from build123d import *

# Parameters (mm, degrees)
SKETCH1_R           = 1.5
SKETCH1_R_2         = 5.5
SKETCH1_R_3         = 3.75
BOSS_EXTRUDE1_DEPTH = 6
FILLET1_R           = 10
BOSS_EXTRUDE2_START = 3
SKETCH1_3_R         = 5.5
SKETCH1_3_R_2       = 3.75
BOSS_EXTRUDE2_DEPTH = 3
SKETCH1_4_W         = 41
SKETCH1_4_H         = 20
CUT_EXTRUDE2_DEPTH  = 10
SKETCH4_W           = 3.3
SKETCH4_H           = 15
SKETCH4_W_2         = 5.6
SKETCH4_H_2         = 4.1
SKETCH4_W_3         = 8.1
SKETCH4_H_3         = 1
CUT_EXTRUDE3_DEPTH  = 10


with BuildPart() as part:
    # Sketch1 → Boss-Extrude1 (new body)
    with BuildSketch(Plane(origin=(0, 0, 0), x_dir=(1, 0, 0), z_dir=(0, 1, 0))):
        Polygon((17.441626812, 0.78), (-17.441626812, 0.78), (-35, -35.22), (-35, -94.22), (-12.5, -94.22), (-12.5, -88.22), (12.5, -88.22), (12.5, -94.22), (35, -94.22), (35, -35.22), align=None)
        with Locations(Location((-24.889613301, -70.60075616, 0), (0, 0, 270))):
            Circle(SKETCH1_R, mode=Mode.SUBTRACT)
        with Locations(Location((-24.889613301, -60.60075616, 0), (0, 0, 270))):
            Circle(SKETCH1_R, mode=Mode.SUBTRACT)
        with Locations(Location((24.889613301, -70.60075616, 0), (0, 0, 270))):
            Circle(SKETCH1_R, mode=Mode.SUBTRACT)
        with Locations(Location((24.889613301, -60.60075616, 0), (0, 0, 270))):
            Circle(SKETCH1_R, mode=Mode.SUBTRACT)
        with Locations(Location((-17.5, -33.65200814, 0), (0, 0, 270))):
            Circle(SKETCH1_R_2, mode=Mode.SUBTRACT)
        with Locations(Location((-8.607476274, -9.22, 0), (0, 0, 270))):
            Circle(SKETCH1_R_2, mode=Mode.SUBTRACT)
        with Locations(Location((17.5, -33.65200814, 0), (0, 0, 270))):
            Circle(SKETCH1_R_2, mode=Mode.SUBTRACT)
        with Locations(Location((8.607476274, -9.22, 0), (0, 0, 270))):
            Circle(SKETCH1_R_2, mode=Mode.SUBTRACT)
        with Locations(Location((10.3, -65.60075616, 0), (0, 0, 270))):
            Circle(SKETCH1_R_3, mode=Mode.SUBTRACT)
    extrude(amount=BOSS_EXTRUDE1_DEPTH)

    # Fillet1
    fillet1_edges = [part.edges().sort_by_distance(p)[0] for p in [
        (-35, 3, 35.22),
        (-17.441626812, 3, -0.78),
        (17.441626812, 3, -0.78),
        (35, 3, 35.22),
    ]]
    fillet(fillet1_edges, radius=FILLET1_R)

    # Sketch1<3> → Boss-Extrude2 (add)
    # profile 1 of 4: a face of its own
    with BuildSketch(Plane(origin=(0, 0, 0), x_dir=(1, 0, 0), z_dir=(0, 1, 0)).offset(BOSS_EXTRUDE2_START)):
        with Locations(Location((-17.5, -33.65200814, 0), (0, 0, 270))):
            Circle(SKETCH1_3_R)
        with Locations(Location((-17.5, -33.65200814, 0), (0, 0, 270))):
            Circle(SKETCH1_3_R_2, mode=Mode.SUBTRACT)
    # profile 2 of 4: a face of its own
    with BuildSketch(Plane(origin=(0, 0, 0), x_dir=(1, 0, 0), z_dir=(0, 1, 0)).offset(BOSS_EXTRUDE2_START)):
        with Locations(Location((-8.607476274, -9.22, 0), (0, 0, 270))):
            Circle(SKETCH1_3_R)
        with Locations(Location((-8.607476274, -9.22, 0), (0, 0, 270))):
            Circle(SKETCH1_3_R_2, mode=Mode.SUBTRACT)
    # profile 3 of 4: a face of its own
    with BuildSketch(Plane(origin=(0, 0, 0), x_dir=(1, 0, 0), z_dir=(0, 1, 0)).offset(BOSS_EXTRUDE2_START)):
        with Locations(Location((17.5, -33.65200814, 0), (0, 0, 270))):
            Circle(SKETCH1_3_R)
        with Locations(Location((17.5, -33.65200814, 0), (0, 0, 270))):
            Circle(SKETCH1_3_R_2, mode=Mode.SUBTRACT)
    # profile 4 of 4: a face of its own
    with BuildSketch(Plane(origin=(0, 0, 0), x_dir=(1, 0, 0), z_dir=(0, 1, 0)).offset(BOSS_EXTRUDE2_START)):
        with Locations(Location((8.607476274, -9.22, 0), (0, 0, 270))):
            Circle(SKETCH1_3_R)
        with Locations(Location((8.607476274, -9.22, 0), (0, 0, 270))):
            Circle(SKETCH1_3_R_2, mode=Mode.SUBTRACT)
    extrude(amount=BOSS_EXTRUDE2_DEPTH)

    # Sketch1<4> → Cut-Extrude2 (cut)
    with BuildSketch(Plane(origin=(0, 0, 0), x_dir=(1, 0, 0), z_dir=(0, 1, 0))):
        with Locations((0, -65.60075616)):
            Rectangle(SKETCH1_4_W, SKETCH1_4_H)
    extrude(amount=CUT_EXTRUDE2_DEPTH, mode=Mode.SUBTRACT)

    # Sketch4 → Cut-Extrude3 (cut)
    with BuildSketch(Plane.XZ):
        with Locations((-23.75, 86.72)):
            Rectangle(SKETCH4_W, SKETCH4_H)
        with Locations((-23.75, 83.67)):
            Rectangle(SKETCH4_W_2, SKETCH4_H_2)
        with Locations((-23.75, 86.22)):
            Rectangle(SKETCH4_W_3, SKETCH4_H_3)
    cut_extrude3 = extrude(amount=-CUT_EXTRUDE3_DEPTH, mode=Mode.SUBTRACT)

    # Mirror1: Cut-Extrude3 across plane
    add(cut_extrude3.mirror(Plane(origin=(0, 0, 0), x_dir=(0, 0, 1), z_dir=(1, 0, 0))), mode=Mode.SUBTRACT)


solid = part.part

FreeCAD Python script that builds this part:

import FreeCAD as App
import Part
import Sketcher
Q = App.Units.Quantity


def edges_at(feature, points):
    """Names of the edges that pass closest to the given points."""
    edges = feature.Shape.Edges
    near = lambda p: min(range(len(edges)), key=lambda i: edges[i].distToShape(Part.Vertex(*p))[0])
    return sorted({f"Edge{near(p) + 1}" for p in points})

doc = App.newDocument("Part")
params = doc.addObject("Spreadsheet::Sheet", "Params")
for row, (alias, value) in enumerate([
    ("sketch1_diameter", "3 mm"),
    ("sketch1_diameter2", "11 mm"),
    ("sketch1_diameter3", "7.5 mm"),
    ("sketch1_width", "25 mm"),
    ("sketch1_height", "59 mm"),
    ("pad1_length", "6 mm"),
    ("fillet_radius", "10 mm"),
    ("sketch2_diameter", "11 mm"),
    ("sketch2_diameter2", "7.5 mm"),
    ("pad2_length", "3 mm"),
    ("sketch3_width", "41 mm"),
    ("sketch3_height", "20 mm"),
    ("pocket1_length", "10 mm"),
    ("sketch4_height", "1 mm"),
    ("sketch4_width", "3.3 mm"),
    ("sketch4_width2", "2.4 mm"),
    ("sketch4_height2", "4.1 mm"),
    ("sketch4_height3", "7.5 mm"),
    ("pocket2_length", "10 mm"),
], start=1):
    params.set(f"A{row}", alias)
    params.set(f"B{row}", "=" + value)
    params.setAlias(f"B{row}", alias)

body = doc.addObject("PartDesign::Body", "Body")

# Sketch on XZ plane
sketch1 = body.newObject("Sketcher::SketchObject", "Sketch")
sketch1.AttachmentSupport = (doc.getObject("XZ_Plane"), [""])
sketch1.MapMode = "FlatFace"
sketch1.addGeometry(Part.LineSegment(App.Vector(17.441627, -0.78, 0), App.Vector(-17.441627, -0.78, 0)), False)
sketch1.addGeometry(Part.LineSegment(App.Vector(-17.441627, -0.78, 0), App.Vector(-35, 35.22, 0)), False)
sketch1.addGeometry(Part.LineSegment(App.Vector(-35, 35.22, 0), App.Vector(-35, 94.22, 0)), False)
sketch1.addGeometry(Part.LineSegment(App.Vector(-35, 94.22, 0), App.Vector(-12.5, 94.22, 0)), False)
sketch1.addGeometry(Part.LineSegment(App.Vector(-12.5, 94.22, 0), App.Vector(-12.5, 88.22, 0)), False)
sketch1.addGeometry(Part.LineSegment(App.Vector(-12.5, 88.22, 0), App.Vector(12.5, 88.22, 0)), False)
sketch1.addGeometry(Part.LineSegment(App.Vector(12.5, 88.22, 0), App.Vector(12.5, 94.22, 0)), False)
sketch1.addGeometry(Part.LineSegment(App.Vector(12.5, 94.22, 0), App.Vector(35, 94.22, 0)), False)
sketch1.addGeometry(Part.LineSegment(App.Vector(35, 94.22, 0), App.Vector(35, 35.22, 0)), False)
sketch1.addGeometry(Part.LineSegment(App.Vector(35, 35.22, 0), App.Vector(17.441627, -0.78, 0)), False)
sketch1.addGeometry(Part.Circle(App.Vector(-24.889613, 70.600756, 0), App.Vector(0, 0, 1), 1.5), False)
sketch1.addGeometry(Part.Circle(App.Vector(-24.889613, 60.600756, 0), App.Vector(0, 0, 1), 1.5), False)
sketch1.addGeometry(Part.Circle(App.Vector(10.3, 65.600756, 0), App.Vector(0, 0, 1), 3.75), False)
sketch1.addGeometry(Part.Circle(App.Vector(24.889613, 70.600756, 0), App.Vector(0, 0, 1), 1.5), False)
sketch1.addGeometry(Part.Circle(App.Vector(24.889613, 60.600756, 0), App.Vector(0, 0, 1), 1.5), False)
sketch1.addGeometry(Part.Circle(App.Vector(-17.5, 33.652008, 0), App.Vector(0, 0, 1), 5.5), False)
sketch1.addGeometry(Part.Circle(App.Vector(-8.607476, 9.22, 0), App.Vector(0, 0, 1), 5.5), False)
sketch1.addGeometry(Part.Circle(App.Vector(17.5, 33.652008, 0), App.Vector(0, 0, 1), 5.5), False)
sketch1.addGeometry(Part.Circle(App.Vector(8.607476, 9.22, 0), App.Vector(0, 0, 1), 5.5), False)
sketch1.addConstraint(Sketcher.Constraint("Coincident", 0, 2, 1, 1))
sketch1.addConstraint(Sketcher.Constraint("Coincident", 1, 2, 2, 1))
sketch1.addConstraint(Sketcher.Constraint("Coincident", 2, 2, 3, 1))
sketch1.addConstraint(Sketcher.Constraint("Coincident", 3, 2, 4, 1))
sketch1.addConstraint(Sketcher.Constraint("Coincident", 4, 2, 5, 1))
sketch1.addConstraint(Sketcher.Constraint("Coincident", 5, 2, 6, 1))
sketch1.addConstraint(Sketcher.Constraint("Coincident", 6, 2, 7, 1))
sketch1.addConstraint(Sketcher.Constraint("Coincident", 7, 2, 8, 1))
sketch1.addConstraint(Sketcher.Constraint("Coincident", 8, 2, 9, 1))
sketch1.addConstraint(Sketcher.Constraint("Coincident", 9, 2, 0, 1))
sketch1.addConstraint(Sketcher.Constraint("Horizontal", 0))
sketch1.addConstraint(Sketcher.Constraint("Vertical", 2))
sketch1.addConstraint(Sketcher.Constraint("Horizontal", 3))
sketch1.addConstraint(Sketcher.Constraint("Vertical", 4))
sketch1.addConstraint(Sketcher.Constraint("Horizontal", 5))
sketch1.addConstraint(Sketcher.Constraint("Vertical", 6))
sketch1.addConstraint(Sketcher.Constraint("Horizontal", 7))
sketch1.addConstraint(Sketcher.Constraint("Vertical", 8))
sketch1.addConstraint(Sketcher.Constraint("Equal", 10, 11))
sketch1.addConstraint(Sketcher.Constraint("Equal", 11, 13))
sketch1.addConstraint(Sketcher.Constraint("Equal", 13, 14))
sketch1.addConstraint(Sketcher.Constraint("Equal", 15, 16))
sketch1.addConstraint(Sketcher.Constraint("Equal", 16, 17))
sketch1.addConstraint(Sketcher.Constraint("Equal", 17, 18))
sketch1.addConstraint(Sketcher.Constraint("Symmetric", 10, 3, 13, 3, -2))
sketch1.addConstraint(Sketcher.Constraint("Symmetric", 11, 3, 14, 3, -2))
sketch1.addConstraint(Sketcher.Constraint("Symmetric", 15, 3, 17, 3, -2))
sketch1.addConstraint(Sketcher.Constraint("Symmetric", 16, 3, 18, 3, -2))
sketch1.addConstraint(Sketcher.Constraint("Symmetric", 3, 2, 6, 2, -2))
sketch1.addConstraint(Sketcher.Constraint("Symmetric", 1, 2, 8, 2, -2))
sketch1.addConstraint(Sketcher.Constraint("Vertical", 10, 3, 11, 3))
sketch1.addConstraint(Sketcher.Constraint("Equal", 1, 9))
sketch1.addConstraint(Sketcher.Constraint("Diameter", 10, Q("3 mm")))
sketch1.addConstraint(Sketcher.Constraint("Diameter", 15, Q("11 mm")))
sketch1.addConstraint(Sketcher.Constraint("Diameter", 12, Q("7.5 mm")))
sketch1.addConstraint(Sketcher.Constraint("DistanceX", 5, 1, 5, 2, Q("25 mm")))
sketch1.addConstraint(Sketcher.Constraint("DistanceY", 2, 1, 2, 2, Q("59 mm")))
sketch1.addConstraint(Sketcher.Constraint("DistanceY", 4, 2, 4, 1, Q("6 mm")))
sketch1.addConstraint(Sketcher.Constraint("Angle", 1, Q("116 deg")))
sketch1.addConstraint(Sketcher.Constraint("DistanceX", 3, 1, 3, 2, Q("22.5 mm")))
sketch1.addConstraint(Sketcher.Constraint("DistanceY", 11, 3, 10, 3, Q("10 mm")))
sketch1.addConstraint(Sketcher.Constraint("DistanceY", 12, 3, 10, 3, Q("5 mm")))
sketch1.addConstraint(Sketcher.Constraint("DistanceX", 15, 3, 17, 3, Q("35 mm")))
sketch1.addConstraint(Sketcher.Constraint("DistanceY", 0, 2, 16, 3, Q("10 mm")))
sketch1.addConstraint(Sketcher.Constraint("DistanceY", 16, 3, 1, 2, Q("26 mm")))
sketch1.addConstraint(Sketcher.Constraint("DistanceX", -1, 1, 12, 3, Q("10.3 mm")))
sketch1.addConstraint(Sketcher.Constraint("DistanceY", -1, 1, 16, 3, Q("9.22 mm")))
sketch1.addConstraint(Sketcher.Constraint("DistanceY", -1, 1, 15, 3, Q("33.652008 mm")))
sketch1.addConstraint(Sketcher.Constraint("DistanceY", 15, 3, 11, 3, Q("26.948748 mm")))
sketch1.addConstraint(Sketcher.Constraint("DistanceX", 16, 3, 14, 3, Q("33.49709 mm")))
sketch1.addConstraint(Sketcher.Constraint("DistanceX", 0, 2, 16, 3, Q("8.834151 mm")))
sketch1.setExpression("Constraints[32]", "Params.sketch1_diameter")
sketch1.setExpression("Constraints[33]", "Params.sketch1_diameter2")
sketch1.setExpression("Constraints[34]", "Params.sketch1_diameter3")
sketch1.setExpression("Constraints[35]", "Params.sketch1_width")
sketch1.setExpression("Constraints[36]", "Params.sketch1_height")
pad1 = body.newObject("PartDesign::Pad", "Pad")
pad1.Profile = sketch1
pad1.setExpression("Length", "Params.pad1_length")
pad1.Reversed = True
doc.recompute()

fillet = body.newObject("PartDesign::Fillet", "Fillet")
fillet.Base = (pad1, edges_at(pad1, [
    (-35, 3, 35.22),
    (-17.442, 3, -0.78),
    (17.442, 3, -0.78),
    (35, 3, 35.22),
]))
fillet.setExpression("Radius", "Params.fillet_radius")

# Sketch on XZ plane
sketch2 = body.newObject("Sketcher::SketchObject", "Sketch001")
sketch2.AttachmentSupport = (doc.getObject("XZ_Plane"), [""])
sketch2.MapMode = "FlatFace"
sketch2.AttachmentOffset = App.Placement(App.Vector(0, 0, -3), App.Rotation())
sketch2.addGeometry(Part.Circle(App.Vector(-17.5, 33.652008, 0), App.Vector(0, 0, 1), 5.5), False)
sketch2.addGeometry(Part.Circle(App.Vector(-17.5, 33.652008, 0), App.Vector(0, 0, 1), 3.75), False)
sketch2.addGeometry(Part.Circle(App.Vector(-8.607476, 9.22, 0), App.Vector(0, 0, 1), 5.5), False)
sketch2.addGeometry(Part.Circle(App.Vector(-8.607476, 9.22, 0), App.Vector(0, 0, 1), 3.75), False)
sketch2.addGeometry(Part.Circle(App.Vector(17.5, 33.652008, 0), App.Vector(0, 0, 1), 5.5), False)
sketch2.addGeometry(Part.Circle(App.Vector(17.5, 33.652008, 0), App.Vector(0, 0, 1), 3.75), False)
sketch2.addGeometry(Part.Circle(App.Vector(8.607476, 9.22, 0), App.Vector(0, 0, 1), 5.5), False)
sketch2.addGeometry(Part.Circle(App.Vector(8.607476, 9.22, 0), App.Vector(0, 0, 1), 3.75), False)
sketch2.addConstraint(Sketcher.Constraint("Coincident", 1, 3, 0, 3))
sketch2.addConstraint(Sketcher.Constraint("Coincident", 3, 3, 2, 3))
sketch2.addConstraint(Sketcher.Constraint("Coincident", 5, 3, 4, 3))
sketch2.addConstraint(Sketcher.Constraint("Coincident", 7, 3, 6, 3))
sketch2.addConstraint(Sketcher.Constraint("Equal", 0, 2))
sketch2.addConstraint(Sketcher.Constraint("Equal", 1, 3))
sketch2.addConstraint(Sketcher.Constraint("Equal", 2, 4))
sketch2.addConstraint(Sketcher.Constraint("Equal", 3, 5))
sketch2.addConstraint(Sketcher.Constraint("Equal", 4, 6))
sketch2.addConstraint(Sketcher.Constraint("Equal", 5, 7))
sketch2.addConstraint(Sketcher.Constraint("Symmetric", 0, 3, 4, 3, -2))
sketch2.addConstraint(Sketcher.Constraint("Symmetric", 2, 3, 6, 3, -2))
sketch2.addConstraint(Sketcher.Constraint("Diameter", 0, Q("11 mm")))
sketch2.addConstraint(Sketcher.Constraint("Diameter", 1, Q("7.5 mm")))
sketch2.addConstraint(Sketcher.Constraint("DistanceX", 0, 3, 4, 3, Q("35 mm")))
sketch2.addConstraint(Sketcher.Constraint("DistanceY", -1, 1, 2, 3, Q("9.22 mm")))
sketch2.addConstraint(Sketcher.Constraint("DistanceY", -1, 1, 0, 3, Q("33.652008 mm")))
sketch2.addConstraint(Sketcher.Constraint("DistanceX", 2, 3, -1, 1, Q("8.607476 mm")))
sketch2.setExpression("Constraints[12]", "Params.sketch2_diameter")
sketch2.setExpression("Constraints[13]", "Params.sketch2_diameter2")
pad2 = body.newObject("PartDesign::Pad", "Pad001")
pad2.Profile = sketch2
pad2.setExpression("Length", "Params.pad2_length")
pad2.Reversed = True

# Sketch on XZ plane
sketch3 = body.newObject("Sketcher::SketchObject", "Sketch002")
sketch3.AttachmentSupport = (doc.getObject("XZ_Plane"), [""])
sketch3.MapMode = "FlatFace"
sketch3.addGeometry(Part.LineSegment(App.Vector(-20.5, 55.600756, 0), App.Vector(-20.5, 75.600756, 0)), False)
sketch3.addGeometry(Part.LineSegment(App.Vector(-20.5, 75.600756, 0), App.Vector(20.5, 75.600756, 0)), False)
sketch3.addGeometry(Part.LineSegment(App.Vector(20.5, 75.600756, 0), App.Vector(20.5, 55.600756, 0)), False)
sketch3.addGeometry(Part.LineSegment(App.Vector(20.5, 55.600756, 0), App.Vector(-20.5, 55.600756, 0)), False)
sketch3.addConstraint(Sketcher.Constraint("Coincident", 0, 2, 1, 1))
sketch3.addConstraint(Sketcher.Constraint("Coincident", 1, 2, 2, 1))
sketch3.addConstraint(Sketcher.Constraint("Coincident", 2, 2, 3, 1))
sketch3.addConstraint(Sketcher.Constraint("Coincident", 3, 2, 0, 1))
sketch3.addConstraint(Sketcher.Constraint("Vertical", 0))
sketch3.addConstraint(Sketcher.Constraint("Horizontal", 1))
sketch3.addConstraint(Sketcher.Constraint("Vertical", 2))
sketch3.addConstraint(Sketcher.Constraint("Horizontal", 3))
sketch3.addConstraint(Sketcher.Constraint("DistanceX", 1, 1, 1, 2, Q("41 mm")))
sketch3.addConstraint(Sketcher.Constraint("DistanceY", 0, 1, 0, 2, Q("20 mm")))
sketch3.addConstraint(Sketcher.Constraint("DistanceX", 0, 2, -1, 1, Q("20.5 mm")))
sketch3.addConstraint(Sketcher.Constraint("DistanceY", -1, 1, 0, 2, Q("75.600756 mm")))
sketch3.setExpression("Constraints[8]", "Params.sketch3_width")
sketch3.setExpression("Constraints[9]", "Params.sketch3_height")
pocket1 = body.newObject("PartDesign::Pocket", "Pocket")
pocket1.Profile = sketch3
pocket1.setExpression("Length", "Params.pocket1_length")

# Sketch on XZ plane
sketch4 = body.newObject("Sketcher::SketchObject", "Sketch003")
sketch4.AttachmentSupport = (doc.getObject("XZ_Plane"), [""])
sketch4.MapMode = "FlatFace"
sketch4.addGeometry(Part.LineSegment(App.Vector(-25.4, 81.62, 0), App.Vector(-25.4, 79.22, 0)), False)
sketch4.addGeometry(Part.LineSegment(App.Vector(-25.4, 79.22, 0), App.Vector(-22.1, 79.22, 0)), False)
sketch4.addGeometry(Part.LineSegment(App.Vector(-22.1, 79.22, 0), App.Vector(-22.1, 81.62, 0)), False)
sketch4.addGeometry(Part.LineSegment(App.Vector(-22.1, 81.62, 0), App.Vector(-20.95, 81.62, 0)), False)
sketch4.addGeometry(Part.LineSegment(App.Vector(-20.95, 81.62, 0), App.Vector(-20.95, 85.72, 0)), False)
sketch4.addGeometry(Part.LineSegment(App.Vector(-20.95, 85.72, 0), App.Vector(-19.7, 85.72, 0)), False)
sketch4.addGeometry(Part.LineSegment(App.Vector(-19.7, 85.72, 0), App.Vector(-19.7, 86.72, 0)), False)
sketch4.addGeometry(Part.LineSegment(App.Vector(-19.7, 86.72, 0), App.Vector(-22.1, 86.72, 0)), False)
sketch4.addGeometry(Part.LineSegment(App.Vector(-22.1, 86.72, 0), App.Vector(-22.1, 94.22, 0)), False)
sketch4.addGeometry(Part.LineSegment(App.Vector(-22.1, 94.22, 0), App.Vector(-25.4, 94.22, 0)), False)
sketch4.addGeometry(Part.LineSegment(App.Vector(-25.4, 94.22, 0), App.Vector(-25.4, 86.72, 0)), False)
sketch4.addGeometry(Part.LineSegment(App.Vector(-25.4, 86.72, 0), App.Vector(-27.8, 86.72, 0)), False)
sketch4.addGeometry(Part.LineSegment(App.Vector(-27.8, 86.72, 0), App.Vector(-27.8, 85.72, 0)), False)
sketch4.addGeometry(Part.LineSegment(App.Vector(-27.8, 85.72, 0), App.Vector(-26.55, 85.72, 0)), False)
sketch4.addGeometry(Part.LineSegment(App.Vector(-26.55, 85.72, 0), App.Vector(-26.55, 81.62, 0)), False)
sketch4.addGeometry(Part.LineSegment(App.Vector(-26.55, 81.62, 0), App.Vector(-25.4, 81.62, 0)), False)
sketch4.addConstraint(Sketcher.Constraint("Coincident", 0, 2, 1, 1))
sketch4.addConstraint(Sketcher.Constraint("Coincident", 1, 2, 2, 1))
sketch4.addConstraint(Sketcher.Constraint("Coincident", 2, 2, 3, 1))
sketch4.addConstraint(Sketcher.Constraint("Coincident", 3, 2, 4, 1))
sketch4.addConstraint(Sketcher.Constraint("Coincident", 4, 2, 5, 1))
sketch4.addConstraint(Sketcher.Constraint("Coincident", 5, 2, 6, 1))
sketch4.addConstraint(Sketcher.Constraint("Coincident", 6, 2, 7, 1))
sketch4.addConstraint(Sketcher.Constraint("Coincident", 7, 2, 8, 1))
sketch4.addConstraint(Sketcher.Constraint("Coincident", 8, 2, 9, 1))
sketch4.addConstraint(Sketcher.Constraint("Coincident", 9, 2, 10, 1))
sketch4.addConstraint(Sketcher.Constraint("Coincident", 10, 2, 11, 1))
sketch4.addConstraint(Sketcher.Constraint("Coincident", 11, 2, 12, 1))
sketch4.addConstraint(Sketcher.Constraint("Coincident", 12, 2, 13, 1))
sketch4.addConstraint(Sketcher.Constraint("Coincident", 13, 2, 14, 1))
sketch4.addConstraint(Sketcher.Constraint("Coincident", 14, 2, 15, 1))
sketch4.addConstraint(Sketcher.Constraint("Coincident", 15, 2, 0, 1))
sketch4.addConstraint(Sketcher.Constraint("Vertical", 0))
sketch4.addConstraint(Sketcher.Constraint("Horizontal", 1))
sketch4.addConstraint(Sketcher.Constraint("Vertical", 2))
sketch4.addConstraint(Sketcher.Constraint("Horizontal", 3))
sketch4.addConstraint(Sketcher.Constraint("Vertical", 4))
sketch4.addConstraint(Sketcher.Constraint("Horizontal", 5))
sketch4.addConstraint(Sketcher.Constraint("Vertical", 6))
sketch4.addConstraint(Sketcher.Constraint("Horizontal", 7))
sketch4.addConstraint(Sketcher.Constraint("Vertical", 8))
sketch4.addConstraint(Sketcher.Constraint("Horizontal", 9))
sketch4.addConstraint(Sketcher.Constraint("Vertical", 10))
sketch4.addConstraint(Sketcher.Constraint("Horizontal", 11))
sketch4.addConstraint(Sketcher.Constraint("Vertical", 12))
sketch4.addConstraint(Sketcher.Constraint("Horizontal", 13))
sketch4.addConstraint(Sketcher.Constraint("Vertical", 14))
sketch4.addConstraint(Sketcher.Constraint("Horizontal", 15))
sketch4.addConstraint(Sketcher.Constraint("Horizontal", 7, 2, 10, 2))
sketch4.addConstraint(Sketcher.Constraint("Horizontal", 5, 2, 12, 2))
sketch4.addConstraint(Sketcher.Constraint("Horizontal", 3, 2, 14, 2))
sketch4.addConstraint(Sketcher.Constraint("Vertical", 2, 2, 7, 2))
sketch4.addConstraint(Sketcher.Constraint("Vertical", 0, 2, 9, 2))
sketch4.addConstraint(Sketcher.Constraint("Equal", 7, 11))
sketch4.addConstraint(Sketcher.Constraint("Equal", 5, 13))
sketch4.addConstraint(Sketcher.Constraint("Equal", 11, 0))
sketch4.addConstraint(Sketcher.Constraint("DistanceY", 6, 1, 6, 2, Q("1 mm")))
sketch4.addConstraint(Sketcher.Constraint("DistanceX", 1, 1, 1, 2, Q("3.3 mm")))
sketch4.addConstraint(Sketcher.Constraint("DistanceX", 7, 2, 7, 1, Q("2.4 mm")))
sketch4.addConstraint(Sketcher.Constraint("DistanceY", 4, 1, 4, 2, Q("4.1 mm")))
sketch4.addConstraint(Sketcher.Constraint("DistanceY", 8, 1, 8, 2, Q("7.5 mm")))
sketch4.addConstraint(Sketcher.Constraint("DistanceX", 3, 1, 3, 2, Q("1.15 mm")))
sketch4.addConstraint(Sketcher.Constraint("DistanceX", 0, 2, -1, 1, Q("25.4 mm")))
sketch4.addConstraint(Sketcher.Constraint("DistanceY", -1, 1, 0, 2, Q("79.22 mm")))
sketch4.setExpression("Constraints[40]", "Params.sketch4_height")
sketch4.setExpression("Constraints[41]", "Params.sketch4_width")
sketch4.setExpression("Constraints[42]", "Params.sketch4_width2")
sketch4.setExpression("Constraints[43]", "Params.sketch4_height2")
sketch4.setExpression("Constraints[44]", "Params.sketch4_height3")
pocket2 = body.newObject("PartDesign::Pocket", "Pocket001")
pocket2.Profile = sketch4
pocket2.setExpression("Length", "Params.pocket2_length")
doc.recompute()

mirrored = body.newObject("PartDesign::Mirrored", "Mirrored")
mirrored.Originals = [pocket2]
mirrored.MirrorPlane = (doc.getObject("YZ_Plane"), [""])
body.Tip = mirrored

doc.recompute()
